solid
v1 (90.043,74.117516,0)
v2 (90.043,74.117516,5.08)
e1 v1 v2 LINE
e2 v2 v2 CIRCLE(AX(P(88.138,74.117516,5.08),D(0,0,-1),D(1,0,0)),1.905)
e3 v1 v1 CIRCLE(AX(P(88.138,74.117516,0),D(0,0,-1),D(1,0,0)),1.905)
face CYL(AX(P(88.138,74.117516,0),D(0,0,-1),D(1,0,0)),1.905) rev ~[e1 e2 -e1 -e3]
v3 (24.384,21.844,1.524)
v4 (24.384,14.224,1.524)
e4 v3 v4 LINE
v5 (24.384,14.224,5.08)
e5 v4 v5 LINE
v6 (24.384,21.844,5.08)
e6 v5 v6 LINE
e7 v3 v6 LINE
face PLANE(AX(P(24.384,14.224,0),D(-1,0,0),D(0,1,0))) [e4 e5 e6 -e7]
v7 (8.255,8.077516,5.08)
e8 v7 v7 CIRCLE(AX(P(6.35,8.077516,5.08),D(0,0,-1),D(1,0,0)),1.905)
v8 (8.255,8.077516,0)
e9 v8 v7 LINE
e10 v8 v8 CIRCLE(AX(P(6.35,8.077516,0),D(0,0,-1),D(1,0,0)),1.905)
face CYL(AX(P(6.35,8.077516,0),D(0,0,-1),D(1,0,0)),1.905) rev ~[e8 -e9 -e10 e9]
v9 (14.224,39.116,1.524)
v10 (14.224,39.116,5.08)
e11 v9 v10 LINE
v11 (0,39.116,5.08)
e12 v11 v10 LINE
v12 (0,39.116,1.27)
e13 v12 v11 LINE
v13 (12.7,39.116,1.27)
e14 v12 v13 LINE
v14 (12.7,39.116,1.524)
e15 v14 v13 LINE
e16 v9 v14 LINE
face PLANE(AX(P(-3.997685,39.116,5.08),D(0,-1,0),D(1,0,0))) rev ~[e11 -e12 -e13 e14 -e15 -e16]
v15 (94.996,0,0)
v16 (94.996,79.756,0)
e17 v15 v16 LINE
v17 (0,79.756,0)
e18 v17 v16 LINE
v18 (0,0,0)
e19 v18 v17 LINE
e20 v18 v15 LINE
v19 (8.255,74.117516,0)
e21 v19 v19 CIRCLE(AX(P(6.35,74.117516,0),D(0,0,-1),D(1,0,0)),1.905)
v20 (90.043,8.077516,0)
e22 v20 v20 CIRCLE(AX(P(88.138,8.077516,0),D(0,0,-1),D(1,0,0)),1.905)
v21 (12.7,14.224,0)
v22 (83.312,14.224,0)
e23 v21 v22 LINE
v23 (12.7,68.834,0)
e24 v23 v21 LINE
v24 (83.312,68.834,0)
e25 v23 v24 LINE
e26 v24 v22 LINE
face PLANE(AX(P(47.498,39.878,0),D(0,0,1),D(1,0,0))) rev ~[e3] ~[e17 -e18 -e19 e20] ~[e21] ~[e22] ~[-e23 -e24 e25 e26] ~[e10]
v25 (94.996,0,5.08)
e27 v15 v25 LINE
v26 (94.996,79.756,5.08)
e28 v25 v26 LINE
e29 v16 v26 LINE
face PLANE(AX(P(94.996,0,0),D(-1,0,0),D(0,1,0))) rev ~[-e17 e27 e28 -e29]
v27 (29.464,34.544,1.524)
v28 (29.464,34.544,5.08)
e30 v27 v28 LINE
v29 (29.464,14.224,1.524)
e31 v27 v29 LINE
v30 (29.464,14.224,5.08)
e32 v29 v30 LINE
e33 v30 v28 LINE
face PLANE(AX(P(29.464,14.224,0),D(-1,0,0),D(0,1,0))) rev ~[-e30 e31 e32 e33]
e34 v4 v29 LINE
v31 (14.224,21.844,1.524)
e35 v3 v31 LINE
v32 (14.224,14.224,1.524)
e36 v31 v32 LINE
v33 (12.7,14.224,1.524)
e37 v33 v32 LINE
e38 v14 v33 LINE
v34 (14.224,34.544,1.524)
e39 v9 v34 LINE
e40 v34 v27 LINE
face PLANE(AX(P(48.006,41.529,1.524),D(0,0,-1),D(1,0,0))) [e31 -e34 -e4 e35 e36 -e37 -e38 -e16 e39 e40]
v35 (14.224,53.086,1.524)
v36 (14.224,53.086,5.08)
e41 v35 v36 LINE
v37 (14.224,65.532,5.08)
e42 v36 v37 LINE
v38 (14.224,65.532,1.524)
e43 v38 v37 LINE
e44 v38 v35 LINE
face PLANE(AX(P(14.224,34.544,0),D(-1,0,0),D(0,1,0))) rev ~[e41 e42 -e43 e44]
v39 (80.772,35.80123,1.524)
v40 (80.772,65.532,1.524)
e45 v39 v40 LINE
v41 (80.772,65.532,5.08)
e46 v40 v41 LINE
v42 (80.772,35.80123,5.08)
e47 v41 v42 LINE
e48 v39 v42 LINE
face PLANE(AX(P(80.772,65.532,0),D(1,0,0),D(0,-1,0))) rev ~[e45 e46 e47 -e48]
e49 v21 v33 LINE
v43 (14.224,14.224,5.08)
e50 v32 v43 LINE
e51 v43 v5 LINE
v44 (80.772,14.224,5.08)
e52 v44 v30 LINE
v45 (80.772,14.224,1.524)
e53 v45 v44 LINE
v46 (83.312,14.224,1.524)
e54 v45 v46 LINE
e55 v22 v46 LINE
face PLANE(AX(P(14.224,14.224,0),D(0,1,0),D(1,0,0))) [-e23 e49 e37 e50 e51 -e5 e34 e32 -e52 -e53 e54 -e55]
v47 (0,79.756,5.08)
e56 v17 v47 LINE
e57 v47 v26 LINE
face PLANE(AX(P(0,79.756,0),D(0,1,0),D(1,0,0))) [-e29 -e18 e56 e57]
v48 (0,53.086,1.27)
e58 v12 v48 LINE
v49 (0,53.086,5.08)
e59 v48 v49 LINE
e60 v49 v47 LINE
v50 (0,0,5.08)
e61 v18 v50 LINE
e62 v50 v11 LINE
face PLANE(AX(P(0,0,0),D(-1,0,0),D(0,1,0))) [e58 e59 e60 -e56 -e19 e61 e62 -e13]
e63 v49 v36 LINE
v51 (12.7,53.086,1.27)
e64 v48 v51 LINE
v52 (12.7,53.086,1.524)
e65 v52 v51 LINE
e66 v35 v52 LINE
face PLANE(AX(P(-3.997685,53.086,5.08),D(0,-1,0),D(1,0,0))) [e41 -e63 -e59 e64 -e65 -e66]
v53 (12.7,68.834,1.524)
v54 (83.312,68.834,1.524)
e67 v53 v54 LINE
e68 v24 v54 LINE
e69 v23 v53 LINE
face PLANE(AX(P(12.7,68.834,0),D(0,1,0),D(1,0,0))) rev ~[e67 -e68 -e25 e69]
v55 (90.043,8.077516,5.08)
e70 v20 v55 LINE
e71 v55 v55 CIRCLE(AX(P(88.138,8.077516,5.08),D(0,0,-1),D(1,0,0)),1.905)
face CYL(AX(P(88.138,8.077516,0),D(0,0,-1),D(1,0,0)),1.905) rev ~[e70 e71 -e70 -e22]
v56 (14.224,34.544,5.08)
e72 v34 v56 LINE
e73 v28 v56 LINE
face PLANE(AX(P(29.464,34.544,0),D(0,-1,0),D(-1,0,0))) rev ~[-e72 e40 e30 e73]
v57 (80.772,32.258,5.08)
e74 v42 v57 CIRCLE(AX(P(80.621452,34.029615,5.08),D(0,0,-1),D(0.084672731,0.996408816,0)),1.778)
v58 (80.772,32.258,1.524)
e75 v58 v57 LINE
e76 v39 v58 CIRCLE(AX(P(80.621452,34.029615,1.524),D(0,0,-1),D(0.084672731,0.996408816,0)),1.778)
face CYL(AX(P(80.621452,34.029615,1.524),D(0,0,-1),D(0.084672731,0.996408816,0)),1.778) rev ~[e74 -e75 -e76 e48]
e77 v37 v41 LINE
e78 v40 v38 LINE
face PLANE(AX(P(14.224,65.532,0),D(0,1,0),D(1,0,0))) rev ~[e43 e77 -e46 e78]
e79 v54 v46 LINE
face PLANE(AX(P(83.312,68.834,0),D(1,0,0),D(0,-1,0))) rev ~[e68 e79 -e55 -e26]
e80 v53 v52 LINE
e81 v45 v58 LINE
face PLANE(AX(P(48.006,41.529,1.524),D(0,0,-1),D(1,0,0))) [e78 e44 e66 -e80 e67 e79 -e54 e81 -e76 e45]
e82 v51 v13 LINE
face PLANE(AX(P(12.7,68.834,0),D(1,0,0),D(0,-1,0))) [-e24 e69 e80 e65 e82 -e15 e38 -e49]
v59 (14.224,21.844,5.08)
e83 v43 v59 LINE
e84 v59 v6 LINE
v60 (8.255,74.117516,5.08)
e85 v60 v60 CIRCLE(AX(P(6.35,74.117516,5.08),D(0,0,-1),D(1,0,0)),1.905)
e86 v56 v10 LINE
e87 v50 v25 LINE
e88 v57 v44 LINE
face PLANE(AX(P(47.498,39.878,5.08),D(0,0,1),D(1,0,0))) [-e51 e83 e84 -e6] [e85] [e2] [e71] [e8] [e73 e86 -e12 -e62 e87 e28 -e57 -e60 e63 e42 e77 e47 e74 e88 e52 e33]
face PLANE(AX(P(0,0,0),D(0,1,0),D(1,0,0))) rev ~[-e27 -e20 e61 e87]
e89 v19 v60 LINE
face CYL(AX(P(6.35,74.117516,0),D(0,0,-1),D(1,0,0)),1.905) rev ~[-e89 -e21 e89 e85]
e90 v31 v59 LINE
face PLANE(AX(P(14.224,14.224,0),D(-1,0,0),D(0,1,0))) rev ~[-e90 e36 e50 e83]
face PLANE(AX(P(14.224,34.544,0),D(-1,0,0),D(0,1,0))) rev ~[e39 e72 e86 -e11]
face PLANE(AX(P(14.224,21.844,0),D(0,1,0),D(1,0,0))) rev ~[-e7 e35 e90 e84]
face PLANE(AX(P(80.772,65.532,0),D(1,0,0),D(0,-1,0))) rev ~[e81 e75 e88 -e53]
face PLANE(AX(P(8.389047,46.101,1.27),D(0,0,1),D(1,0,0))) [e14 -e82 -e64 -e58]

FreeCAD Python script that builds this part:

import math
import FreeCAD as App
import Part
import Sketcher
from FreeCAD import Vector
Q = App.Units.Quantity


def add_polygon(sketch, points):
    """Adds a closed chain of lines whose ends are joined by coincident constraints."""
    first, n = sketch.GeometryCount, len(points)
    for a, b in zip(points, points[1:] + points[:1]):
        sketch.addGeometry(Part.LineSegment(App.Vector(*a, 0), App.Vector(*b, 0)), False)
    for i in range(n):
        sketch.addConstraint(Sketcher.Constraint("Coincident", first + i, 2, first + (i + 1) % n, 1))

doc = App.newDocument("Part")
params = doc.addObject("Spreadsheet::Sheet", "Params")
for row, (alias, value) in enumerate([
    ("sketch1_width", "0.4 in"),
    ("sketch1_width2", "0.6 in"),
    ("sketch1_height", "0.3 in"),
    ("sketch1_height2", "0.8 in"),
    ("sketch1_width3", "3.74 in"),
    ("pad1_length", "0.2 in"),
    ("sketch2_width", "2.78 in"),
    ("sketch2_height", "2.15 in"),
    ("pocket1_length", "0.06 in"),
    ("sketch3_radius", "0.07 in"),
    ("pocket2_length", "1 in"),
    ("sketch4_diameter", "0.15 in"),
    ("pocket3_length", "1 in"),
    ("sketch5_height", "0.55 in"),
    ("pocket4_length", "0.15 in"),
], start=1):
    params.set(f"A{row}", alias)
    params.set(f"B{row}", "=" + value)
    params.setAlias(f"B{row}", alias)

body = doc.addObject("PartDesign::Body", "Body")

# Sketch on XY plane
sketch1 = doc.addObject("Sketcher::SketchObject", "Sketch")
body.addObject(sketch1)
sketch1.AttachmentSupport = (doc.XY_Plane, [""])
sketch1.MapMode = "FlatFace"
add_polygon(sketch1, [(0, 80), (0, 0), (95, 0), (95, 80)])  # lines 0-3
add_polygon(sketch1, [(24, 14), (14, 14), (14, 22), (24, 22)])  # lines 4-7
add_polygon(sketch1, [(14, 35), (14, 66), (81, 66), (81, 14), (29, 14), (29, 35)])  # lines 8-13
sketch1.addConstraint(Sketcher.Constraint("Vertical", 0))
sketch1.addConstraint(Sketcher.Constraint("Horizontal", 1))
sketch1.addConstraint(Sketcher.Constraint("Vertical", 2))
sketch1.addConstraint(Sketcher.Constraint("Horizontal", 3))
sketch1.addConstraint(Sketcher.Constraint("Horizontal", 4))
sketch1.addConstraint(Sketcher.Constraint("Vertical", 5))
sketch1.addConstraint(Sketcher.Constraint("Horizontal", 6))
sketch1.addConstraint(Sketcher.Constraint("Vertical", 7))
sketch1.addConstraint(Sketcher.Constraint("Vertical", 8))
sketch1.addConstraint(Sketcher.Constraint("Horizontal", 9))
sketch1.addConstraint(Sketcher.Constraint("Vertical", 10))
sketch1.addConstraint(Sketcher.Constraint("Horizontal", 11))
sketch1.addConstraint(Sketcher.Constraint("Vertical", 12))
sketch1.addConstraint(Sketcher.Constraint("Horizontal", 13))
sketch1.addConstraint(Sketcher.Constraint("Coincident", 0, 2, -1, 1))
sketch1.addConstraint(Sketcher.Constraint("Horizontal", 7, 2, 10, 2))
sketch1.addConstraint(Sketcher.Constraint("Vertical", 5, 2, 8, 2))
sketch1.addConstraint(Sketcher.Constraint("Equal", 11, 10))
sketch1.addConstraint(Sketcher.Constraint("DistanceX", 4, 2, 4, 1, Q("0.4 in")))
sketch1.addConstraint(Sketcher.Constraint("DistanceX", 13, 2, 13, 1, Q("0.6 in")))
sketch1.addConstraint(Sketcher.Constraint("DistanceY", 5, 1, 5, 2, Q("0.3 in")))
sketch1.addConstraint(Sketcher.Constraint("DistanceY", 12, 1, 12, 2, Q("0.8 in")))
sketch1.addConstraint(Sketcher.Constraint("DistanceX", 1, 1, 1, 2, Q("3.74 in")))
sketch1.addConstraint(Sketcher.Constraint("DistanceX", 9, 1, 9, 2, Q("2.62 in")))
sketch1.addConstraint(Sketcher.Constraint("DistanceY", 0, 2, 0, 1, Q("3.14 in")))
sketch1.addConstraint(Sketcher.Constraint("DistanceX", -1, 1, 4, 2, Q("0.56 in")))
sketch1.addConstraint(Sketcher.Constraint("DistanceY", -1, 1, 4, 2, Q("0.56 in")))
sketch1.setExpression("Constraints[32]", "Params.sketch1_width")
sketch1.setExpression("Constraints[33]", "Params.sketch1_width2")
sketch1.setExpression("Constraints[34]", "Params.sketch1_height")
sketch1.setExpression("Constraints[35]", "Params.sketch1_height2")
sketch1.setExpression("Constraints[36]", "Params.sketch1_width3")
pad1 = doc.addObject("PartDesign::Pad", "Pad")
body.addObject(pad1)
pad1.Profile = sketch1
pad1.setExpression("Length", "Params.pad1_length")

# Sketch on XY plane
sketch2 = doc.addObject("Sketcher::SketchObject", "Sketch001")
body.addObject(sketch2)
sketch2.AttachmentSupport = (doc.XY_Plane, [""])
sketch2.MapMode = "FlatFace"
add_polygon(sketch2, [(13, 14), (13, 69), (83, 69), (83, 14)])  # lines 0-3
sketch2.addConstraint(Sketcher.Constraint("Vertical", 0))
sketch2.addConstraint(Sketcher.Constraint("Horizontal", 1))
sketch2.addConstraint(Sketcher.Constraint("Vertical", 2))
sketch2.addConstraint(Sketcher.Constraint("Horizontal", 3))
sketch2.addConstraint(Sketcher.Constraint("DistanceX", 1, 1, 1, 2, Q("2.78 in")))
sketch2.addConstraint(Sketcher.Constraint("DistanceY", 0, 1, 0, 2, Q("2.15 in")))
sketch2.addConstraint(Sketcher.Constraint("DistanceX", -1, 1, 0, 2, Q("0.5 in")))
sketch2.addConstraint(Sketcher.Constraint("DistanceY", -1, 1, 0, 2, Q("2.71 in")))
sketch2.setExpression("Constraints[8]", "Params.sketch2_width")
sketch2.setExpression("Constraints[9]", "Params.sketch2_height")
pocket1 = doc.addObject("PartDesign::Pocket", "Pocket")
body.addObject(pocket1)
pocket1.Profile = sketch2
pocket1.setExpression("Length", "Params.pocket1_length")
pocket1.Reversed = True

# Sketch on XY plane
sketch3 = doc.addObject("Sketcher::SketchObject", "Sketch002")
body.addObject(sketch3)
sketch3.AttachmentSupport = (doc.XY_Plane, [""])
sketch3.MapMode = "FlatFace"
sketch3.AttachmentOffset = App.Placement(Vector(0, 0, 0.06 * 25.4), App.Rotation())
sketch3.addGeometry(Part.LineSegment(Vector(80.8, 32.3, 0), Vector(80.8, 35.8, 0)), False)
sketch3.addGeometry(Part.ArcOfCircle(Part.Circle(Vector(80.6, 34, 0), Vector(0, 0, 1), 1.8), math.radians(-85), math.radians(85)), False)
sketch3.addConstraint(Sketcher.Constraint("Coincident", 0, 1, 1, 1))
sketch3.addConstraint(Sketcher.Constraint("Coincident", 1, 2, 0, 2))
sketch3.addConstraint(Sketcher.Constraint("Vertical", 0))
sketch3.addConstraint(Sketcher.Constraint("Radius", 1, Q("0.07 in")))
sketch3.addConstraint(Sketcher.Constraint("DistanceX", -1, 1, 0, 1, Q("3.18 in")))
sketch3.addConstraint(Sketcher.Constraint("DistanceY", -1, 1, 0, 1, Q("1.27 in")))
sketch3.addConstraint(Sketcher.Constraint("DistanceY", 0, 1, 0, 2, 3.54323))
sketch3.setExpression("Constraints[3]", "Params.sketch3_radius")
pocket2 = doc.addObject("PartDesign::Pocket", "Pocket001")
body.addObject(pocket2)
pocket2.Profile = sketch3
pocket2.setExpression("Length", "Params.pocket2_length")
pocket2.Reversed = True

# Sketch on XY plane
sketch4 = doc.addObject("Sketcher::SketchObject", "Sketch003")
body.addObject(sketch4)
sketch4.AttachmentSupport = (doc.XY_Plane, [""])
sketch4.MapMode = "FlatFace"
sketch4.addGeometry(Part.Circle(Vector(6.3, 8.1, 0), Vector(0, 0, 1), 1.9), False)
sketch4.addGeometry(Part.Circle(Vector(88.1, 8.1, 0), Vector(0, 0, 1), 1.9), False)
sketch4.addGeometry(Part.Circle(Vector(6.3, 74.1, 0), Vector(0, 0, 1), 1.9), False)
sketch4.addGeometry(Part.Circle(Vector(88.1, 74.1, 0), Vector(0, 0, 1), 1.9), False)
sketch4.addConstraint(Sketcher.Constraint("Equal", 0, 1))
sketch4.addConstraint(Sketcher.Constraint("Equal", 1, 2))
sketch4.addConstraint(Sketcher.Constraint("Equal", 2, 3))
sketch4.addConstraint(Sketcher.Constraint("Horizontal", 0, 3, 1, 3))
sketch4.addConstraint(Sketcher.Constraint("Horizontal", 2, 3, 3, 3))
sketch4.addConstraint(Sketcher.Constraint("Vertical", 0, 3, 2, 3))
sketch4.addConstraint(Sketcher.Constraint("Vertical", 1, 3, 3, 3))
sketch4.addConstraint(Sketcher.Constraint("Diameter", 0, Q("0.15 in")))
sketch4.addConstraint(Sketcher.Constraint("DistanceY", 0, 3, 2, 3, Q("2.6 in")))
sketch4.addConstraint(Sketcher.Constraint("DistanceX", -1, 1, 0, 3, Q("0.25 in")))
sketch4.addConstraint(Sketcher.Constraint("DistanceX", -1, 1, 1, 3, Q("3.47 in")))
sketch4.addConstraint(Sketcher.Constraint("DistanceY", -1, 1, 0, 3, 8.077516))
sketch4.setExpression("Constraints[7]", "Params.sketch4_diameter")
pocket3 = doc.addObject("PartDesign::Pocket", "Pocket002")
body.addObject(pocket3)
pocket3.Profile = sketch4
pocket3.setExpression("Length", "Params.pocket3_length")
pocket3.Reversed = True

# Sketch on XY plane
sketch5 = doc.addObject("Sketcher::SketchObject", "Sketch004")
body.addObject(sketch5)
sketch5.AttachmentSupport = (doc.XY_Plane, [""])
sketch5.MapMode = "FlatFace"
sketch5.AttachmentOffset = App.Placement(Vector(0, 0, 0.2 * 25.4), App.Rotation())
add_polygon(sketch5, [(-4, 53), (-4, 39), (21, 39), (21, 53)])  # lines 0-3
sketch5.addConstraint(Sketcher.Constraint("Vertical", 0))
sketch5.addConstraint(Sketcher.Constraint("Horizontal", 1))
sketch5.addConstraint(Sketcher.Constraint("Vertical", 2))
sketch5.addConstraint(Sketcher.Constraint("Horizontal", 3))
sketch5.addConstraint(Sketcher.Constraint("DistanceY", 0, 2, 0, 1, Q("0.55 in")))
sketch5.addConstraint(Sketcher.Constraint("DistanceY", -1, 1, 0, 2, Q("1.54 in")))
sketch5.addConstraint(Sketcher.Constraint("DistanceX", 1, 1, 1, 2, 24.773464))
sketch5.addConstraint(Sketcher.Constraint("DistanceX", -1, 1, 1, 2, 20.775779))
sketch5.setExpression("Constraints[8]", "Params.sketch5_height")
pocket4 = doc.addObject("PartDesign::Pocket", "Pocket003")
body.addObject(pocket4)
pocket4.Profile = sketch5
pocket4.setExpression("Length", "Params.pocket4_length")

doc.recompute()
